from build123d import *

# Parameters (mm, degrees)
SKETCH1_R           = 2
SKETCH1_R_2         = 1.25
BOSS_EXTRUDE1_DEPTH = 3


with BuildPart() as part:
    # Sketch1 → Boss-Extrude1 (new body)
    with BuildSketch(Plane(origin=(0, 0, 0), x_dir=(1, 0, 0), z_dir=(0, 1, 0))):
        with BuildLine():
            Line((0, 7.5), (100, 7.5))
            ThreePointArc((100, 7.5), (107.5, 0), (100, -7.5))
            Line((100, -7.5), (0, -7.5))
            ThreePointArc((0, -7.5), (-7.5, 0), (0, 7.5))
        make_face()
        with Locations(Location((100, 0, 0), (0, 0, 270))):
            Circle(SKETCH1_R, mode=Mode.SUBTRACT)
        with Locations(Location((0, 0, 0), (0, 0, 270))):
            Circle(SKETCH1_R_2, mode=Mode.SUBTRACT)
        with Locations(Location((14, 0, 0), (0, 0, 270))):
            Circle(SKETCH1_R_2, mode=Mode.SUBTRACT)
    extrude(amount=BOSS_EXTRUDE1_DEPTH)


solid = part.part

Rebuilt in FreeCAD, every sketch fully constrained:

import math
import FreeCAD as App
import Part
import Sketcher
from FreeCAD import Vector
Q = App.Units.Quantity

doc = App.newDocument("Part")
body = doc.addObject("PartDesign::Body", "Body")

sketch1 = body.newObject("Sketcher::SketchObject", "Sketch")
sketch1.AttachmentSupport = (doc.getObject("XZ_Plane"), [""])
sketch1.MapMode = "FlatFace"
sketch1.addGeometry([
    Part.LineSegment(Vector(100, -7.5, 0), Vector(0, -7.5, 0)),
    Part.ArcOfCircle(Part.Circle(Vector(0, 0, 0), Vector(0, 0, 1), 7.5), math.radians(90), math.radians(270)),
    Part.LineSegment(Vector(0, 7.5, 0), Vector(100, 7.5, 0)),
    Part.ArcOfCircle(Part.Circle(Vector(100, 0, 0), Vector(0, 0, 1), 7.5), math.radians(-90), math.radians(90)),
    Part.Circle(Vector(100, 0, 0), Vector(0, 0, 1), 2),
    Part.Circle(Vector(14, 0, 0), Vector(0, 0, 1), 1.2),
    Part.Circle(Vector(0, 0, 0), Vector(0, 0, 1), 1.2),
], False)
sketch1.addConstraint([
    Sketcher.Constraint("Tangent", 0, 2, 1, 2),
    Sketcher.Constraint("Tangent", 1, 1, 2, 1),
    Sketcher.Constraint("Tangent", 2, 2, 3, 2),
    Sketcher.Constraint("Tangent", 3, 1, 0, 1),
    Sketcher.Constraint("Horizontal", 0),
    Sketcher.Constraint("Horizontal", 2),
    Sketcher.Constraint("Coincident", 1, 3, -1, 1),
    Sketcher.Constraint("Coincident", 6, 3, -1, 1),
    Sketcher.Constraint("Coincident", 4, 3, 3, 3),
    Sketcher.Constraint("Equal", 5, 6),
    Sketcher.Constraint("PointOnObject", 5, 3, -1),
    Sketcher.Constraint("Diameter", 4, Q("4 mm")),
    Sketcher.Constraint("Diameter", 5, Q("2.5 mm")),
    Sketcher.Constraint("Radius", 1, Q("7.5 mm")),
    Sketcher.Constraint("DistanceX", 0, 2, 0, 1, Q("100 mm")),
    Sketcher.Constraint("DistanceX", -1, 1, 5, 3, Q("14 mm")),
])
pad1 = body.newObject("PartDesign::Pad", "Pad")
pad1.Profile = sketch1
pad1.Length = 3
pad1.Reversed = True

doc.recompute()
